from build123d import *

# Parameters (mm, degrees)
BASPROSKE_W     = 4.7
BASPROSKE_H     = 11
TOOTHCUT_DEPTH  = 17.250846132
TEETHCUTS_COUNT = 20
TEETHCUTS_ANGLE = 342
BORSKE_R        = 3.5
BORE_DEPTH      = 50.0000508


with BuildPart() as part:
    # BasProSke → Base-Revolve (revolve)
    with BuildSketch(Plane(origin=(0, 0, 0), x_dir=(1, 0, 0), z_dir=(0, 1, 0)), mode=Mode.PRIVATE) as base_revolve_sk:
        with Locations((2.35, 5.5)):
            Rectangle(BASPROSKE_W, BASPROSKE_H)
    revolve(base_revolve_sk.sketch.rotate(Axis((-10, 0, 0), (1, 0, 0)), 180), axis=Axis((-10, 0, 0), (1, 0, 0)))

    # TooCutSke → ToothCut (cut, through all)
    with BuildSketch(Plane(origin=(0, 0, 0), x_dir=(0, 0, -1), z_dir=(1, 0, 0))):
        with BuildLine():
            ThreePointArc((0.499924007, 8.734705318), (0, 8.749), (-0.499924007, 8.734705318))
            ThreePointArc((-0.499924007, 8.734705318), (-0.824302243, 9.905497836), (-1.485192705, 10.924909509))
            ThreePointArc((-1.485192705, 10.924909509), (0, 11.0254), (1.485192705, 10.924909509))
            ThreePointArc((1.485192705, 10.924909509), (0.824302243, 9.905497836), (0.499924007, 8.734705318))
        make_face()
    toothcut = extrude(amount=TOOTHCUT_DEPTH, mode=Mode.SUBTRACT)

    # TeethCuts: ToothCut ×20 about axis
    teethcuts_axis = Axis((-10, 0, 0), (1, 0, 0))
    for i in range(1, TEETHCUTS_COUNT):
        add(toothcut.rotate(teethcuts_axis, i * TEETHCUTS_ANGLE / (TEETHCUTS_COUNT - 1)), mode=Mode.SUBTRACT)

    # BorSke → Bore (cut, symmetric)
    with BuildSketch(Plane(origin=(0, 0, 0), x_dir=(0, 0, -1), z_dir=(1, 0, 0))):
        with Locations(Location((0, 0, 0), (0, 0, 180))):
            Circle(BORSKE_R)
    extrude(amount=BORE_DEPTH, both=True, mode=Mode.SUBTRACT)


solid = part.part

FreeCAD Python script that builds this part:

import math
import FreeCAD as App
import Part
import Sketcher

V = App.Vector

doc = App.newDocument("Part")
params = doc.addObject("Spreadsheet::Sheet", "Params")
for row, (alias, value) in enumerate([
    ("sketch1_height", "11 mm"),
    ("sketch1_width", "4.7 mm"),
    ("revolution_angle", "360 deg"),
    ("sketch2_radius", "4 mm"),
    ("sketch3_diameter", "7 mm"),
    ("pocket2_length", "100.000102 mm"),
], start=1):
    params.set(f"A{row}", alias)
    params.set(f"B{row}", "=" + value)
    params.setAlias(f"B{row}", alias)

body = doc.addObject("PartDesign::Body", "Body")

sketch1 = body.newObject("Sketcher::SketchObject", "Sketch")
sketch1.AttachmentSupport = (doc.getObject("XZ_Plane"), [""])
sketch1.MapMode = "FlatFace"
sketch1.addGeometry(Part.LineSegment(V(0, -11, 0), V(0, 0, 0)), False)
sketch1.addGeometry(Part.LineSegment(V(0, 0, 0), V(4.7, 0, 0)), False)
sketch1.addGeometry(Part.LineSegment(V(4.7, 0, 0), V(4.7, -11, 0)), False)
sketch1.addGeometry(Part.LineSegment(V(4.7, -11, 0), V(0, -11, 0)), False)
sketch1.addConstraint(Sketcher.Constraint("Coincident", 0, 2, 1, 1))
sketch1.addConstraint(Sketcher.Constraint("Coincident", 1, 2, 2, 1))
sketch1.addConstraint(Sketcher.Constraint("Coincident", 2, 2, 3, 1))
sketch1.addConstraint(Sketcher.Constraint("Coincident", 3, 2, 0, 1))
sketch1.addConstraint(Sketcher.Constraint("Vertical", 0))
sketch1.addConstraint(Sketcher.Constraint("Horizontal", 1))
sketch1.addConstraint(Sketcher.Constraint("Vertical", 2))
sketch1.addConstraint(Sketcher.Constraint("Horizontal", 3))
sketch1.addConstraint(Sketcher.Constraint("Coincident", 0, 2, -1, 1))
sketch1.addConstraint(Sketcher.Constraint("DistanceY", 0, 1, 0, 2, 11.0))
sketch1.addConstraint(Sketcher.Constraint("DistanceX", 1, 1, 1, 2, 4.7))
sketch1.setExpression("Constraints[9]", "Params.sketch1_height")
sketch1.setExpression("Constraints[10]", "Params.sketch1_width")
revolution = body.newObject("PartDesign::Revolution", "Revolution")
revolution.Profile = sketch1
revolution.ReferenceAxis = (sketch1, ["H_Axis"])
revolution.setExpression("Angle", "Params.revolution_angle")

sketch2 = body.newObject("Sketcher::SketchObject", "Sketch001")
sketch2.AttachmentSupport = (doc.getObject("YZ_Plane"), [""])
sketch2.MapMode = "FlatFace"
sketch2.addGeometry(Part.ArcOfCircle(Part.Circle(V(0, 0, 0), V(0, 0, 1), 8.7), math.radians(-3.28), math.radians(3.28)), False)
sketch2.addGeometry(Part.ArcOfCircle(Part.Circle(V(8.3, -4.5, 0), V(0, 0, 1), 4), math.radians(48), math.radians(83)), False)
sketch2.addGeometry(Part.ArcOfCircle(Part.Circle(V(0, 0, 0), V(0, 0, 1), 11), math.radians(-7.74), math.radians(7.74)), False)
sketch2.addGeometry(Part.ArcOfCircle(Part.Circle(V(8.3, 4.5, 0), V(0, 0, 1), 4), math.radians(-83), math.radians(-48)), False)
sketch2.addConstraint(Sketcher.Constraint("Coincident", 0, 1, 1, 2))
sketch2.addConstraint(Sketcher.Constraint("Coincident", 1, 1, 2, 1))
sketch2.addConstraint(Sketcher.Constraint("Coincident", 2, 2, 3, 2))
sketch2.addConstraint(Sketcher.Constraint("Coincident", 3, 1, 0, 2))
sketch2.addConstraint(Sketcher.Constraint("Coincident", 0, 3, -1, 1))
sketch2.addConstraint(Sketcher.Constraint("Coincident", 2, 3, -1, 1))
sketch2.addConstraint(Sketcher.Constraint("Equal", 1, 3))
sketch2.addConstraint(Sketcher.Constraint("Symmetric", 1, 3, 3, 3, -1))
sketch2.addConstraint(Sketcher.Constraint("Radius", 1, 4.0))
sketch2.addConstraint(Sketcher.Constraint("Radius", 0, 8.749))
sketch2.addConstraint(Sketcher.Constraint("Radius", 2, 11.0254))
sketch2.addConstraint(Sketcher.Constraint("DistanceY", 1, 3, -1, 1, 4.47219))
sketch2.addConstraint(Sketcher.Constraint("DistanceX", -1, 1, 1, 1, 10.92491))
sketch2.setExpression("Constraints[8]", "Params.sketch2_radius")
pocket1 = body.newObject("PartDesign::Pocket", "Pocket")
pocket1.Profile = sketch2
pocket1.Type = "ThroughAll"
pocket1.Reversed = True
doc.recompute()

polarpattern = body.newObject("PartDesign::PolarPattern", "PolarPattern")
polarpattern.Originals = [pocket1]
polarpattern.Axis = (doc.getObject("X_Axis"), [""])
polarpattern.Angle = 360
polarpattern.Occurrences = 20
body.Tip = polarpattern

sketch3 = body.newObject("Sketcher::SketchObject", "Sketch002")
sketch3.AttachmentSupport = (doc.getObject("YZ_Plane"), [""])
sketch3.MapMode = "FlatFace"
sketch3.addGeometry(Part.Circle(V(0, 0, 0), V(0, 0, 1), 3.5), False)
sketch3.addConstraint(Sketcher.Constraint("Coincident", 0, 3, -1, 1))
sketch3.addConstraint(Sketcher.Constraint("Diameter", 0, 7.0))
sketch3.setExpression("Constraints[1]", "Params.sketch3_diameter")
pocket2 = body.newObject("PartDesign::Pocket", "Pocket001")
pocket2.Profile = sketch3
pocket2.setExpression("Length", "Params.pocket2_length")
pocket2.Midplane = True

doc.recompute()
